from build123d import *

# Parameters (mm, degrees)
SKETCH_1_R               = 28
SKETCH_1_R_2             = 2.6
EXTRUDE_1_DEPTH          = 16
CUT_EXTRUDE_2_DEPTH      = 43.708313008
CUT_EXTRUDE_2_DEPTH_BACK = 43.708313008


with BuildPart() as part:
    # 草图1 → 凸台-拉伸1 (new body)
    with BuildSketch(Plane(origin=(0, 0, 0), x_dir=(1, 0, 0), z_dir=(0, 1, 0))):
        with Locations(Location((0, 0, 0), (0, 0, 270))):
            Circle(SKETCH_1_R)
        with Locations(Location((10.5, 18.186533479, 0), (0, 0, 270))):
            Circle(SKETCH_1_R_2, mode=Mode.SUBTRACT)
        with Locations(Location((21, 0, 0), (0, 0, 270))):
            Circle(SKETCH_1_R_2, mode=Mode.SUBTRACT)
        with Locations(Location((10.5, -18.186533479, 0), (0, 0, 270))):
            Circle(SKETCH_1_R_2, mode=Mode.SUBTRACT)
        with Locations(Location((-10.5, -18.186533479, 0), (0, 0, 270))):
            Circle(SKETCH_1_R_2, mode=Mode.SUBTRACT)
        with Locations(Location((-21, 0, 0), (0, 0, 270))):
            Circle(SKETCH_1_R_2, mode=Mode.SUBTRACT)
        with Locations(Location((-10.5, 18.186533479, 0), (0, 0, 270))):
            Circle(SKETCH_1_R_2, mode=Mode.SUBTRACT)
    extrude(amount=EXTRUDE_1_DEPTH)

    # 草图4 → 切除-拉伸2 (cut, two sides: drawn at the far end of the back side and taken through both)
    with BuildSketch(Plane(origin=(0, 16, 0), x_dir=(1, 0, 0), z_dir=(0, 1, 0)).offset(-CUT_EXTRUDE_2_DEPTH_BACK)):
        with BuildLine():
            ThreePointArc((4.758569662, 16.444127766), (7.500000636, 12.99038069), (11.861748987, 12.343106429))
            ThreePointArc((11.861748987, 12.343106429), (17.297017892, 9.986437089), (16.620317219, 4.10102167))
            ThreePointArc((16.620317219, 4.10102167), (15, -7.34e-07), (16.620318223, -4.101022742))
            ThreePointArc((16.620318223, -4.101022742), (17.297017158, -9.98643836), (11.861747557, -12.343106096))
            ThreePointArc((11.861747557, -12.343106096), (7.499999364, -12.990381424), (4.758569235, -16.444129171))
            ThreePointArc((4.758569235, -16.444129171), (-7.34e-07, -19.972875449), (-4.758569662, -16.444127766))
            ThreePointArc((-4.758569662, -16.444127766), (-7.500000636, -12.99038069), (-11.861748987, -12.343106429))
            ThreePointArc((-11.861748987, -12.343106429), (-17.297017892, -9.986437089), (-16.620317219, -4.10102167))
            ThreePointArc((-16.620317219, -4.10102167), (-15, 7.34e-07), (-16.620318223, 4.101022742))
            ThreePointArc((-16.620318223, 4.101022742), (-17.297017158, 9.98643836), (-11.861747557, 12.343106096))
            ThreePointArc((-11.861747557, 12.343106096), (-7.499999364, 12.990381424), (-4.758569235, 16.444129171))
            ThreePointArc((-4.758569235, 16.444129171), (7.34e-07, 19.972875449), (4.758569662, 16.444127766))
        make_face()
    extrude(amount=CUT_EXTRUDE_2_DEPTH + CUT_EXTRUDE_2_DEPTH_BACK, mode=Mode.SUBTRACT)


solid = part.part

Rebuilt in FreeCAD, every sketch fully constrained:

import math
import FreeCAD as App
import Part
import Sketcher
from FreeCAD import Vector

doc = App.newDocument("Part")
params = doc.addObject("Spreadsheet::Sheet", "Params")
for row, (alias, value) in enumerate([
    ("sketch1_diameter", "56 mm"),
    ("sketch1_diameter2", "5.2 mm"),
    ("pad1_length", "16 mm"),
    ("sketch2_radius", "6 mm"),
], start=1):
    params.set(f"A{row}", alias)
    params.set(f"B{row}", "=" + value)
    params.setAlias(f"B{row}", alias)

body = doc.addObject("PartDesign::Body", "Body")

# Sketch on XZ plane
sketch1 = body.newObject("Sketcher::SketchObject", "Sketch")
sketch1.AttachmentSupport = (doc.getObject("XZ_Plane"), [""])
sketch1.MapMode = "FlatFace"
sketch1.addGeometry([
    Part.Circle(Vector(0, 0, 0), Vector(0, 0, 1), 28),  # 0
    Part.Circle(Vector(-10.5, -18.2, 0), Vector(0, 0, 1), 2.6),  # 1
    Part.Circle(Vector(-21, 0, 0), Vector(0, 0, 1), 2.6),  # 2
    Part.Circle(Vector(-10.5, 18.2, 0), Vector(0, 0, 1), 2.6),  # 3
    Part.Circle(Vector(10.5, -18.2, 0), Vector(0, 0, 1), 2.6),  # 4
    Part.Circle(Vector(21, 0, 0), Vector(0, 0, 1), 2.6),  # 5
    Part.Circle(Vector(10.5, 18.2, 0), Vector(0, 0, 1), 2.6),  # 6
], False)
sketch1.addConstraint([
    Sketcher.Constraint("Coincident", 0, 3, -1, 1),
    Sketcher.Constraint("Equal", 1, 2),
    Sketcher.Constraint("Equal", 2, 3),
    Sketcher.Constraint("Equal", 3, 4),
    Sketcher.Constraint("Equal", 4, 5),
    Sketcher.Constraint("Equal", 5, 6),
    Sketcher.Constraint("Symmetric", 3, 3, 4, 3, -1, 1),
    Sketcher.Constraint("Symmetric", 2, 3, 5, 3, -1, 1),
    Sketcher.Constraint("Symmetric", 1, 3, 6, 3, -1, 1),
    Sketcher.Constraint("Symmetric", 1, 3, 4, 3, -2),
    Sketcher.Constraint("PointOnObject", 2, 3, -1),
    Sketcher.Constraint("Diameter", 0, 56.0),
    Sketcher.Constraint("Diameter", 1, 5.2),
    Sketcher.Constraint("DistanceX", 2, 3, -1, 1, 21.0),
    Sketcher.Constraint("DistanceX", 1, 3, 4, 3, 21.0),
    Sketcher.Constraint("DistanceY", 1, 3, -1, 1, 18.186533),
])
sketch1.setExpression("Constraints[11]", "Params.sketch1_diameter")
sketch1.setExpression("Constraints[12]", "Params.sketch1_diameter2")
pad1 = body.newObject("PartDesign::Pad", "Pad")
pad1.Profile = sketch1
pad1.setExpression("Length", "Params.pad1_length")
pad1.Reversed = True

# Sketch on XZ plane
sketch2 = body.newObject("Sketcher::SketchObject", "Sketch001")
sketch2.AttachmentSupport = (doc.getObject("XZ_Plane"), [""])
sketch2.MapMode = "FlatFace"
sketch2.AttachmentOffset = App.Placement(Vector(0, 0, -16), App.Rotation())
sketch2.addGeometry([
    Part.ArcOfCircle(Part.Circle(Vector(10.5, -18.2, 0), Vector(0, 0, 1), 6), math.radians(77), math.radians(163)),  # 0
    Part.ArcOfCircle(Part.Circle(Vector(0, -15, 0), Vector(0, 0, 1), 5), math.radians(-163), math.radians(-17)),  # 1
    Part.ArcOfCircle(Part.Circle(Vector(-10.5, -18.2, 0), Vector(0, 0, 1), 6), math.radians(17), math.radians(103)),  # 2
    Part.ArcOfCircle(Part.Circle(Vector(-13, -7.5, 0), Vector(0, 0, 1), 5), math.radians(137), math.radians(283)),  # 3
    Part.ArcOfCircle(Part.Circle(Vector(-21, 0, 0), Vector(0, 0, 1), 6), math.radians(-43), math.radians(43)),  # 4
    Part.ArcOfCircle(Part.Circle(Vector(-13, 7.5, 0), Vector(0, 0, 1), 5), math.radians(77), math.radians(223)),  # 5
    Part.ArcOfCircle(Part.Circle(Vector(-10.5, 18.2, 0), Vector(0, 0, 1), 6), math.radians(-103), math.radians(-17)),  # 6
    Part.ArcOfCircle(Part.Circle(Vector(0, 15, 0), Vector(0, 0, 1), 5), math.radians(17), math.radians(163)),  # 7
    Part.ArcOfCircle(Part.Circle(Vector(10.5, 18.2, 0), Vector(0, 0, 1), 6), math.radians(-163), math.radians(-77)),  # 8
    Part.ArcOfCircle(Part.Circle(Vector(13, 7.5, 0), Vector(0, 0, 1), 5), math.radians(-43), math.radians(103)),  # 9
    Part.ArcOfCircle(Part.Circle(Vector(21, 0, 0), Vector(0, 0, 1), 6), math.radians(137), math.radians(223)),  # 10
    Part.ArcOfCircle(Part.Circle(Vector(13, -7.5, 0), Vector(0, 0, 1), 5), math.radians(-103), math.radians(43)),  # 11
], False)
sketch2.addConstraint([
    Sketcher.Constraint("Tangent", 0, 2, 1, 2),
    Sketcher.Constraint("Tangent", 1, 1, 2, 1),
    Sketcher.Constraint("Tangent", 2, 2, 3, 2),
    Sketcher.Constraint("Tangent", 3, 1, 4, 1),
    Sketcher.Constraint("Tangent", 4, 2, 5, 2),
    Sketcher.Constraint("Tangent", 5, 1, 6, 1),
    Sketcher.Constraint("Tangent", 6, 2, 7, 2),
    Sketcher.Constraint("Tangent", 7, 1, 8, 1),
    Sketcher.Constraint("Tangent", 8, 2, 9, 2),
    Sketcher.Constraint("Tangent", 9, 1, 10, 1),
    Sketcher.Constraint("Tangent", 10, 2, 11, 2),
    Sketcher.Constraint("Tangent", 11, 1, 0, 1),
    Sketcher.Constraint("Equal", 0, 2),
    Sketcher.Constraint("Equal", 1, 3),
    Sketcher.Constraint("Equal", 2, 4),
    Sketcher.Constraint("Equal", 3, 5),
    Sketcher.Constraint("Equal", 4, 6),
    Sketcher.Constraint("Equal", 5, 7),
    Sketcher.Constraint("Equal", 6, 8),
    Sketcher.Constraint("Equal", 7, 9),
    Sketcher.Constraint("Equal", 8, 10),
    Sketcher.Constraint("Equal", 9, 11),
    Sketcher.Constraint("Symmetric", 0, 3, 6, 3, -1, 1),
    Sketcher.Constraint("Symmetric", 2, 3, 8, 3, -1, 1),
    Sketcher.Constraint("Symmetric", 4, 3, 10, 3, -1, 1),
    Sketcher.Constraint("Symmetric", 0, 3, 2, 3, -2),
    Sketcher.Constraint("PointOnObject", 4, 3, -1),
    Sketcher.Constraint("Radius", 0, 6.0),
    Sketcher.Constraint("DistanceY", 1, 3, -1, 1, 15.0),
    Sketcher.Constraint("DistanceX", 4, 3, -1, 1, 21.0),
    Sketcher.Constraint("DistanceX", 2, 3, 0, 3, 21.0),
    Sketcher.Constraint("DistanceY", 3, 3, 5, 3, 15.0),
])
sketch2.setExpression("Constraints[27]", "Params.sketch2_radius")
pocket1 = body.newObject("PartDesign::Pocket", "Pocket")
pocket1.Profile = sketch2
pocket1.Type = "ThroughAll"
pocket1.Midplane = True

doc.recompute()
